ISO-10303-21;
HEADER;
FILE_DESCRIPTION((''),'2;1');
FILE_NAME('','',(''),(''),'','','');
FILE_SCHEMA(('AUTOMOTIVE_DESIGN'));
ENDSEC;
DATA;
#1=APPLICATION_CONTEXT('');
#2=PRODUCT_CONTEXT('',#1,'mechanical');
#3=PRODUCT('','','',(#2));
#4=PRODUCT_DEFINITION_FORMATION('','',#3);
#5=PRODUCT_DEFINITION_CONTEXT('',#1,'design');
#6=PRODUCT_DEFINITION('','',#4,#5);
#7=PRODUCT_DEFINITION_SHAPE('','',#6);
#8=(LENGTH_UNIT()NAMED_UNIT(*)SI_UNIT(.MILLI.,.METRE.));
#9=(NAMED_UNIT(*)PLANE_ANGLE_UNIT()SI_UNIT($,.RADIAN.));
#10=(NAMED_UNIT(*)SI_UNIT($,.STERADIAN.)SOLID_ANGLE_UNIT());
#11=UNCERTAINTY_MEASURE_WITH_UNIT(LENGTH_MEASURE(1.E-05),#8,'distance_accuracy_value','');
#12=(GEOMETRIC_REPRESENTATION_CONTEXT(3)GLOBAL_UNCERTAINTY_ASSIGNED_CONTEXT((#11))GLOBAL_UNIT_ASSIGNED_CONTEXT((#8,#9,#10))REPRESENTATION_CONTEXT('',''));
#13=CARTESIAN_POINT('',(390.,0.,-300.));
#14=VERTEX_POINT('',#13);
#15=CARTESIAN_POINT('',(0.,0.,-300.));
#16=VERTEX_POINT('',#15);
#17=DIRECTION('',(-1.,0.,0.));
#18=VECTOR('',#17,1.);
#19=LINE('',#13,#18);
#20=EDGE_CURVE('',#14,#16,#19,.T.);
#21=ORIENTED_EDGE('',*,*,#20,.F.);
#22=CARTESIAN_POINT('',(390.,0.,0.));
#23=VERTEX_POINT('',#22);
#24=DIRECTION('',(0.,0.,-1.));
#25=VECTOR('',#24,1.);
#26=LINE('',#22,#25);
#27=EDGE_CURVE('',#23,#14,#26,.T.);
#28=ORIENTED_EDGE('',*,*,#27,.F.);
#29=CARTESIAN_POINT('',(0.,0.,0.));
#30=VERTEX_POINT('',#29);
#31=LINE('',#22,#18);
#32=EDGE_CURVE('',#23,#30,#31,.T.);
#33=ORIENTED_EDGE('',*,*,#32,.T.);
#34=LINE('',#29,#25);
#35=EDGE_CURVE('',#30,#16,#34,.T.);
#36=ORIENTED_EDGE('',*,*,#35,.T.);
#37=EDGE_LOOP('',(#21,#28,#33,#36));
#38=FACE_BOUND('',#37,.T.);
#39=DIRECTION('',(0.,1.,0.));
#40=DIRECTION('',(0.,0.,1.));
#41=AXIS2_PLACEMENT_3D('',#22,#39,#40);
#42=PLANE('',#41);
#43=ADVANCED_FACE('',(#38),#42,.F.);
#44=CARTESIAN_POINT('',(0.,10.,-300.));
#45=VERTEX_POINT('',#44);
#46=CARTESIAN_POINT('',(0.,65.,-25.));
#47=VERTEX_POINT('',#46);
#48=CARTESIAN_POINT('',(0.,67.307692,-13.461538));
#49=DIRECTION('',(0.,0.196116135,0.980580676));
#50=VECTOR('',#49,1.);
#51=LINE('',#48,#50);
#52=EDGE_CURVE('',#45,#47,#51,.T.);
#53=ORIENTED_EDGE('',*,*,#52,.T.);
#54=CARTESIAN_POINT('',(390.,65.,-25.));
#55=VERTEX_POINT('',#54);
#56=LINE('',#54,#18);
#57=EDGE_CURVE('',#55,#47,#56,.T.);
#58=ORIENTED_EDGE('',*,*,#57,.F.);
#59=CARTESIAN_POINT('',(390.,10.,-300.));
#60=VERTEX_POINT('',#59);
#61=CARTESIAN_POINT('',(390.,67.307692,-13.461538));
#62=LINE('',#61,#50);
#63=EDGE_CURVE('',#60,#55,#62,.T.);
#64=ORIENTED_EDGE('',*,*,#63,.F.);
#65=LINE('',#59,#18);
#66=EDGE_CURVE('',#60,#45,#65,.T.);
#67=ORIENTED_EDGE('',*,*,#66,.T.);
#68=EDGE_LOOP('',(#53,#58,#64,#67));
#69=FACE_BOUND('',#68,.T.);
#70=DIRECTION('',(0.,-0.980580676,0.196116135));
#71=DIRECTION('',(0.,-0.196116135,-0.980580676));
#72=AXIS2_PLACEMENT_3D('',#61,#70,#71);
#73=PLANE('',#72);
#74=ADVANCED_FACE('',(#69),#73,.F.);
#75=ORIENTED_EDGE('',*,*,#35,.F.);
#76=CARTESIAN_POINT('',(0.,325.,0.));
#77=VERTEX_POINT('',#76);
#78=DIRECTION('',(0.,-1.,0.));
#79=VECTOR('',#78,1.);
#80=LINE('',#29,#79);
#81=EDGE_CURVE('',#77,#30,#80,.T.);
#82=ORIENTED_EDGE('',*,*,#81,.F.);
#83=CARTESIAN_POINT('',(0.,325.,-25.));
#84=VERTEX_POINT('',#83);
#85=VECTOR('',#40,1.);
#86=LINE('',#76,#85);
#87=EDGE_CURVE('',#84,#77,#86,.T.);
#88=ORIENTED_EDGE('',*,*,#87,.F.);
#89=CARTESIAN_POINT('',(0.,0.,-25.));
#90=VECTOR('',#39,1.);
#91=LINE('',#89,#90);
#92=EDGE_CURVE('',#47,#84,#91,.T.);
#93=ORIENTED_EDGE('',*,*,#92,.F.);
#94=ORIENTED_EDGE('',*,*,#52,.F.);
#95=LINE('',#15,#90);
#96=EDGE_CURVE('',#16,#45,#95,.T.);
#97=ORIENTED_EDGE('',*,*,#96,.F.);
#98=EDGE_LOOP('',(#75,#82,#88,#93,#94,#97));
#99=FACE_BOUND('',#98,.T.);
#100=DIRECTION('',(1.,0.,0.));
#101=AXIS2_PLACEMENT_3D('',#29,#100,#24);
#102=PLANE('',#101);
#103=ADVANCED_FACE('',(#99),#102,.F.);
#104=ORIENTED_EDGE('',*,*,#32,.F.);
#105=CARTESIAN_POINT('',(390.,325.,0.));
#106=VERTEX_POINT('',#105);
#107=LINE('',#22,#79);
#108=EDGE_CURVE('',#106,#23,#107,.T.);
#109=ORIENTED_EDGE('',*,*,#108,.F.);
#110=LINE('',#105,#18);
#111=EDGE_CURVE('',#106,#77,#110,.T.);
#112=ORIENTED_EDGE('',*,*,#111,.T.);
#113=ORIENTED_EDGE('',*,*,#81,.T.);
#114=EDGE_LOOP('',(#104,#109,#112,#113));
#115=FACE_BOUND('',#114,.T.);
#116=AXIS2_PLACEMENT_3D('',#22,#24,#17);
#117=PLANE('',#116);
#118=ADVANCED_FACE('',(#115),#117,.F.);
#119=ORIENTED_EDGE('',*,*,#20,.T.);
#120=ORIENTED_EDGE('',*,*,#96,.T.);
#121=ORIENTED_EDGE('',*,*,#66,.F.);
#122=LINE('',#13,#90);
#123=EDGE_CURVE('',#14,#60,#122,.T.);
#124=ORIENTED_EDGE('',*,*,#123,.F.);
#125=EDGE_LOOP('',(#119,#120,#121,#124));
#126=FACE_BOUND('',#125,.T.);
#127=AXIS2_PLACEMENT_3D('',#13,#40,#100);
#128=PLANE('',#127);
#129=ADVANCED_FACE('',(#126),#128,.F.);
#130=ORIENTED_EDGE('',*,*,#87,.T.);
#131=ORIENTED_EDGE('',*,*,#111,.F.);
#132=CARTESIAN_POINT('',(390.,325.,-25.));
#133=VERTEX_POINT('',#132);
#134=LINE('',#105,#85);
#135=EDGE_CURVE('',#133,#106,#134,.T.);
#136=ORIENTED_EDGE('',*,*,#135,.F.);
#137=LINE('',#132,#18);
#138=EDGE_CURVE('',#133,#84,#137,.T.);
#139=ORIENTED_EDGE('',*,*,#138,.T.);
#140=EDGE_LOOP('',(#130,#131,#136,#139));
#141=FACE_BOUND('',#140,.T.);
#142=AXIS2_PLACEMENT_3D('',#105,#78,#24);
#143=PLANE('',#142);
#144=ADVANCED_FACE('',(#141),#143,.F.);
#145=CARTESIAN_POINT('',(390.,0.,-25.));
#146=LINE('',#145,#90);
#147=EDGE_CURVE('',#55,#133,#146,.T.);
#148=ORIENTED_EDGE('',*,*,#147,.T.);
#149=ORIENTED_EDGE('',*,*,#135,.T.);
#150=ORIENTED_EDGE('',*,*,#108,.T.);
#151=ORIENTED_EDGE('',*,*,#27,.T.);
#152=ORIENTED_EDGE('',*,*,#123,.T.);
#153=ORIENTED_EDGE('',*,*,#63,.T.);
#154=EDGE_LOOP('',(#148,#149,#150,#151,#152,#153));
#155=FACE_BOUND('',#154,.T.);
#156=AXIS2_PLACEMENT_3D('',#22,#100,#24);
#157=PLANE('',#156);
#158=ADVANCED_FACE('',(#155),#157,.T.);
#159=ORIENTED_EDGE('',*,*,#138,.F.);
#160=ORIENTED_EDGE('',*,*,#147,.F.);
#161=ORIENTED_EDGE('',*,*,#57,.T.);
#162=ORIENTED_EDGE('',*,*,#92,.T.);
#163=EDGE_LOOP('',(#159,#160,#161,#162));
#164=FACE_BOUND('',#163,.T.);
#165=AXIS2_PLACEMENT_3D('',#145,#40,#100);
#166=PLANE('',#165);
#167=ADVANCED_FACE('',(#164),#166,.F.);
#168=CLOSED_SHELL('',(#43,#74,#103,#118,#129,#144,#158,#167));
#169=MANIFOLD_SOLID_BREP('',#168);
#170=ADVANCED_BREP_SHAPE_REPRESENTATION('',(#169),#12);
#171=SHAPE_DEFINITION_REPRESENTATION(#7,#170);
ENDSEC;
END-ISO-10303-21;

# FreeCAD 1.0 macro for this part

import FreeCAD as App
import Part
import Sketcher

doc = App.newDocument("Part")
body = doc.addObject("PartDesign::Body", "Body")

# Sketch on YZ plane
sketch1 = doc.addObject("Sketcher::SketchObject", "Sketch")
body.addObject(sketch1)
sketch1.AttachmentSupport = (doc.YZ_Plane, [""])
sketch1.MapMode = "FlatFace"
sketch1.addGeometry(Part.LineSegment(App.Vector(325, -25, 0), App.Vector(325, 0, 0)), False)
sketch1.addGeometry(Part.LineSegment(App.Vector(325, 0, 0), App.Vector(0, 0, 0)), False)
sketch1.addGeometry(Part.LineSegment(App.Vector(0, 0, 0), App.Vector(0, -300, 0)), False)
sketch1.addGeometry(Part.LineSegment(App.Vector(0, -300, 0), App.Vector(10, -300, 0)), False)
sketch1.addGeometry(Part.LineSegment(App.Vector(10, -300, 0), App.Vector(65, -25, 0)), False)
sketch1.addGeometry(Part.LineSegment(App.Vector(65, -25, 0), App.Vector(325, -25, 0)), False)
sketch1.addConstraint(Sketcher.Constraint("Coincident", 0, 2, 1, 1))
sketch1.addConstraint(Sketcher.Constraint("Coincident", 1, 2, 2, 1))
sketch1.addConstraint(Sketcher.Constraint("Coincident", 2, 2, 3, 1))
sketch1.addConstraint(Sketcher.Constraint("Coincident", 3, 2, 4, 1))
sketch1.addConstraint(Sketcher.Constraint("Coincident", 4, 2, 5, 1))
sketch1.addConstraint(Sketcher.Constraint("Coincident", 5, 2, 0, 1))
sketch1.addConstraint(Sketcher.Constraint("Vertical", 0))
sketch1.addConstraint(Sketcher.Constraint("Horizontal", 1))
sketch1.addConstraint(Sketcher.Constraint("Vertical", 2))
sketch1.addConstraint(Sketcher.Constraint("Horizontal", 3))
sketch1.addConstraint(Sketcher.Constraint("Horizontal", 5))
sketch1.addConstraint(Sketcher.Constraint("Coincident", 1, 2, -1, 1))
sketch1.addConstraint(Sketcher.Constraint("DistanceX", 1, 2, 1, 1, 325.0))
sketch1.addConstraint(Sketcher.Constraint("DistanceX", 3, 1, 3, 2, 10.0))
sketch1.addConstraint(Sketcher.Constraint("DistanceX", 5, 1, 5, 2, 260.0))
sketch1.addConstraint(Sketcher.Constraint("DistanceY", 0, 1, 0, 2, 25.0))
sketch1.addConstraint(Sketcher.Constraint("DistanceY", 2, 2, 2, 1, 300.0))
pad1 = doc.addObject("PartDesign::Pad", "Pad")
body.addObject(pad1)
pad1.Profile = sketch1
pad1.Length = 390

doc.recompute()
